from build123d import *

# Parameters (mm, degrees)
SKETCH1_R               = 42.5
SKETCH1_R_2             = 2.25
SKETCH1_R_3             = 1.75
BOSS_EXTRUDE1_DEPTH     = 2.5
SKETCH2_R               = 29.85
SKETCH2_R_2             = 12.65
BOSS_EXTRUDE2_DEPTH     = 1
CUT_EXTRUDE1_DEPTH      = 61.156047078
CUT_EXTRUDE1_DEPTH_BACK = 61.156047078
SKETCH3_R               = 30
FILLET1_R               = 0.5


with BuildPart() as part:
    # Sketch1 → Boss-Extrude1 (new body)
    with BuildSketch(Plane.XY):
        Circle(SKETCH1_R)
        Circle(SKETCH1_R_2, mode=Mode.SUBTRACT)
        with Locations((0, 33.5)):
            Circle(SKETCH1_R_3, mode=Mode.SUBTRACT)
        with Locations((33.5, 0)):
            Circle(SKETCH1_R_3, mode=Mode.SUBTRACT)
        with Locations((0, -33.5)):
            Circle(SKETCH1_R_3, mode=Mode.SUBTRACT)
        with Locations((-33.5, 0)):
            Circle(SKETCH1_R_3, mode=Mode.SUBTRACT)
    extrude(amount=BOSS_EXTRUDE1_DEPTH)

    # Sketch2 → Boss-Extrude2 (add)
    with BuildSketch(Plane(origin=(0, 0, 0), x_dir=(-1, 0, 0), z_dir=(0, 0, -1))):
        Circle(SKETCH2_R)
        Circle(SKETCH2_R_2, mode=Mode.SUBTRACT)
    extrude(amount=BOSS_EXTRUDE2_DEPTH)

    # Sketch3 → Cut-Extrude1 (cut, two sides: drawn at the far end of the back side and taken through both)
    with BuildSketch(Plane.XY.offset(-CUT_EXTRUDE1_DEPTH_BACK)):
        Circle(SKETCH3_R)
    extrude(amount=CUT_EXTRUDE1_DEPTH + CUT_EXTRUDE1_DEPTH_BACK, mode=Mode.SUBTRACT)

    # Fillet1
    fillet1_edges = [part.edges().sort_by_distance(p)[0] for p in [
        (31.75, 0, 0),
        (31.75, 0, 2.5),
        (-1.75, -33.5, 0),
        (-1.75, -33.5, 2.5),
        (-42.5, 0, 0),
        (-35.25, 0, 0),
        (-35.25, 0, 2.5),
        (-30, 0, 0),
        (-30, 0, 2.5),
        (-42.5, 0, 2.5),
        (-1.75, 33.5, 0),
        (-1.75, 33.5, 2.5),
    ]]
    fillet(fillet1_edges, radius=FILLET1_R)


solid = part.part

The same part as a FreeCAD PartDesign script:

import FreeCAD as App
import Part
import Sketcher

V = App.Vector
Q = App.Units.Quantity


def edges_at(feature, points):
    """Names of the edges that pass closest to the given points."""
    edges = feature.Shape.Edges
    near = lambda p: min(range(len(edges)), key=lambda i: edges[i].distToShape(Part.Vertex(*p))[0])
    return sorted({f"Edge{near(p) + 1}" for p in points})

doc = App.newDocument("Part")
body = doc.addObject("PartDesign::Body", "Body")

# Sketch on XY plane
sketch1 = body.newObject("Sketcher::SketchObject", "Sketch")
sketch1.AttachmentSupport = (doc.getObject("XY_Plane"), [""])
sketch1.MapMode = "FlatFace"
sketch1.addGeometry([
    Part.Circle(V(0, 0, 0), V(0, 0, 1), 42.5),  # 0
    Part.Circle(V(0, -33.5, 0), V(0, 0, 1), 1.75),  # 1
    Part.Circle(V(-33.5, 0, 0), V(0, 0, 1), 1.75),  # 2
    Part.Circle(V(0, 0, 0), V(0, 0, 1), 2.25),  # 3
    Part.Circle(V(33.5, 0, 0), V(0, 0, 1), 1.75),  # 4
    Part.Circle(V(0, 33.5, 0), V(0, 0, 1), 1.75),  # 5
], False)
sketch1.addConstraint([
    Sketcher.Constraint("Coincident", 0, 3, -1, 1),
    Sketcher.Constraint("Coincident", 3, 3, -1, 1),
    Sketcher.Constraint("Equal", 1, 2),
    Sketcher.Constraint("Equal", 2, 4),
    Sketcher.Constraint("Equal", 4, 5),
    Sketcher.Constraint("Symmetric", 2, 3, 4, 3, -1, 1),
    Sketcher.Constraint("Symmetric", 1, 3, 5, 3, -1, 1),
    Sketcher.Constraint("PointOnObject", 1, 3, -2),
    Sketcher.Constraint("PointOnObject", 2, 3, -1),
    Sketcher.Constraint("Diameter", 0, Q("85 mm")),
    Sketcher.Constraint("Diameter", 1, Q("3.5 mm")),
    Sketcher.Constraint("Diameter", 3, Q("4.5 mm")),
    Sketcher.Constraint("DistanceX", 2, 3, 4, 3, Q("67 mm")),
    Sketcher.Constraint("DistanceY", 1, 3, 5, 3, Q("67 mm")),
])
pad1 = body.newObject("PartDesign::Pad", "Pad")
pad1.Profile = sketch1
pad1.Length = 2.5

# Sketch on XY plane
sketch2 = body.newObject("Sketcher::SketchObject", "Sketch001")
sketch2.AttachmentSupport = (doc.getObject("XY_Plane"), [""])
sketch2.MapMode = "FlatFace"
sketch2.addGeometry([
    Part.Circle(V(0, 0, 0), V(0, 0, 1), 29.85),
    Part.Circle(V(0, 0, 0), V(0, 0, 1), 12.65),
], False)
sketch2.addConstraint([
    Sketcher.Constraint("Coincident", 0, 3, -1, 1),
    Sketcher.Constraint("Coincident", 1, 3, -1, 1),
    Sketcher.Constraint("Diameter", 0, Q("59.7 mm")),
    Sketcher.Constraint("Diameter", 1, Q("25.3 mm")),
])
pad2 = body.newObject("PartDesign::Pad", "Pad001")
pad2.Profile = sketch2
pad2.Length = 1
pad2.Reversed = True

# Sketch on XY plane
sketch3 = body.newObject("Sketcher::SketchObject", "Sketch002")
sketch3.AttachmentSupport = (doc.getObject("XY_Plane"), [""])
sketch3.MapMode = "FlatFace"
sketch3.addGeometry(Part.Circle(V(0, 0, 0), V(0, 0, 1), 30), False)
sketch3.addConstraint([
    Sketcher.Constraint("Coincident", 0, 3, -1, 1),
    Sketcher.Constraint("Diameter", 0, Q("60 mm")),
])
pocket1 = body.newObject("PartDesign::Pocket", "Pocket")
pocket1.Profile = sketch3
pocket1.Type = "ThroughAll"
pocket1.Midplane = True
doc.recompute()

fillet = body.newObject("PartDesign::Fillet", "Fillet")
fillet.Base = (pocket1, edges_at(pocket1, [
    (31.75, 0, 0),
    (31.75, 0, 2.5),
    (-1.75, -33.5, 0),
    (-1.75, -33.5, 2.5),
    (-42.5, 0, 0),
    (-35.25, 0, 0),
    (-35.25, 0, 2.5),
    (-30, 0, 0),
    (-30, 0, 2.5),
    (-42.5, 0, 2.5),
    (-1.75, 33.5, 0),
    (-1.75, 33.5, 2.5),
]))
fillet.Radius = 0.5

doc.recompute()
